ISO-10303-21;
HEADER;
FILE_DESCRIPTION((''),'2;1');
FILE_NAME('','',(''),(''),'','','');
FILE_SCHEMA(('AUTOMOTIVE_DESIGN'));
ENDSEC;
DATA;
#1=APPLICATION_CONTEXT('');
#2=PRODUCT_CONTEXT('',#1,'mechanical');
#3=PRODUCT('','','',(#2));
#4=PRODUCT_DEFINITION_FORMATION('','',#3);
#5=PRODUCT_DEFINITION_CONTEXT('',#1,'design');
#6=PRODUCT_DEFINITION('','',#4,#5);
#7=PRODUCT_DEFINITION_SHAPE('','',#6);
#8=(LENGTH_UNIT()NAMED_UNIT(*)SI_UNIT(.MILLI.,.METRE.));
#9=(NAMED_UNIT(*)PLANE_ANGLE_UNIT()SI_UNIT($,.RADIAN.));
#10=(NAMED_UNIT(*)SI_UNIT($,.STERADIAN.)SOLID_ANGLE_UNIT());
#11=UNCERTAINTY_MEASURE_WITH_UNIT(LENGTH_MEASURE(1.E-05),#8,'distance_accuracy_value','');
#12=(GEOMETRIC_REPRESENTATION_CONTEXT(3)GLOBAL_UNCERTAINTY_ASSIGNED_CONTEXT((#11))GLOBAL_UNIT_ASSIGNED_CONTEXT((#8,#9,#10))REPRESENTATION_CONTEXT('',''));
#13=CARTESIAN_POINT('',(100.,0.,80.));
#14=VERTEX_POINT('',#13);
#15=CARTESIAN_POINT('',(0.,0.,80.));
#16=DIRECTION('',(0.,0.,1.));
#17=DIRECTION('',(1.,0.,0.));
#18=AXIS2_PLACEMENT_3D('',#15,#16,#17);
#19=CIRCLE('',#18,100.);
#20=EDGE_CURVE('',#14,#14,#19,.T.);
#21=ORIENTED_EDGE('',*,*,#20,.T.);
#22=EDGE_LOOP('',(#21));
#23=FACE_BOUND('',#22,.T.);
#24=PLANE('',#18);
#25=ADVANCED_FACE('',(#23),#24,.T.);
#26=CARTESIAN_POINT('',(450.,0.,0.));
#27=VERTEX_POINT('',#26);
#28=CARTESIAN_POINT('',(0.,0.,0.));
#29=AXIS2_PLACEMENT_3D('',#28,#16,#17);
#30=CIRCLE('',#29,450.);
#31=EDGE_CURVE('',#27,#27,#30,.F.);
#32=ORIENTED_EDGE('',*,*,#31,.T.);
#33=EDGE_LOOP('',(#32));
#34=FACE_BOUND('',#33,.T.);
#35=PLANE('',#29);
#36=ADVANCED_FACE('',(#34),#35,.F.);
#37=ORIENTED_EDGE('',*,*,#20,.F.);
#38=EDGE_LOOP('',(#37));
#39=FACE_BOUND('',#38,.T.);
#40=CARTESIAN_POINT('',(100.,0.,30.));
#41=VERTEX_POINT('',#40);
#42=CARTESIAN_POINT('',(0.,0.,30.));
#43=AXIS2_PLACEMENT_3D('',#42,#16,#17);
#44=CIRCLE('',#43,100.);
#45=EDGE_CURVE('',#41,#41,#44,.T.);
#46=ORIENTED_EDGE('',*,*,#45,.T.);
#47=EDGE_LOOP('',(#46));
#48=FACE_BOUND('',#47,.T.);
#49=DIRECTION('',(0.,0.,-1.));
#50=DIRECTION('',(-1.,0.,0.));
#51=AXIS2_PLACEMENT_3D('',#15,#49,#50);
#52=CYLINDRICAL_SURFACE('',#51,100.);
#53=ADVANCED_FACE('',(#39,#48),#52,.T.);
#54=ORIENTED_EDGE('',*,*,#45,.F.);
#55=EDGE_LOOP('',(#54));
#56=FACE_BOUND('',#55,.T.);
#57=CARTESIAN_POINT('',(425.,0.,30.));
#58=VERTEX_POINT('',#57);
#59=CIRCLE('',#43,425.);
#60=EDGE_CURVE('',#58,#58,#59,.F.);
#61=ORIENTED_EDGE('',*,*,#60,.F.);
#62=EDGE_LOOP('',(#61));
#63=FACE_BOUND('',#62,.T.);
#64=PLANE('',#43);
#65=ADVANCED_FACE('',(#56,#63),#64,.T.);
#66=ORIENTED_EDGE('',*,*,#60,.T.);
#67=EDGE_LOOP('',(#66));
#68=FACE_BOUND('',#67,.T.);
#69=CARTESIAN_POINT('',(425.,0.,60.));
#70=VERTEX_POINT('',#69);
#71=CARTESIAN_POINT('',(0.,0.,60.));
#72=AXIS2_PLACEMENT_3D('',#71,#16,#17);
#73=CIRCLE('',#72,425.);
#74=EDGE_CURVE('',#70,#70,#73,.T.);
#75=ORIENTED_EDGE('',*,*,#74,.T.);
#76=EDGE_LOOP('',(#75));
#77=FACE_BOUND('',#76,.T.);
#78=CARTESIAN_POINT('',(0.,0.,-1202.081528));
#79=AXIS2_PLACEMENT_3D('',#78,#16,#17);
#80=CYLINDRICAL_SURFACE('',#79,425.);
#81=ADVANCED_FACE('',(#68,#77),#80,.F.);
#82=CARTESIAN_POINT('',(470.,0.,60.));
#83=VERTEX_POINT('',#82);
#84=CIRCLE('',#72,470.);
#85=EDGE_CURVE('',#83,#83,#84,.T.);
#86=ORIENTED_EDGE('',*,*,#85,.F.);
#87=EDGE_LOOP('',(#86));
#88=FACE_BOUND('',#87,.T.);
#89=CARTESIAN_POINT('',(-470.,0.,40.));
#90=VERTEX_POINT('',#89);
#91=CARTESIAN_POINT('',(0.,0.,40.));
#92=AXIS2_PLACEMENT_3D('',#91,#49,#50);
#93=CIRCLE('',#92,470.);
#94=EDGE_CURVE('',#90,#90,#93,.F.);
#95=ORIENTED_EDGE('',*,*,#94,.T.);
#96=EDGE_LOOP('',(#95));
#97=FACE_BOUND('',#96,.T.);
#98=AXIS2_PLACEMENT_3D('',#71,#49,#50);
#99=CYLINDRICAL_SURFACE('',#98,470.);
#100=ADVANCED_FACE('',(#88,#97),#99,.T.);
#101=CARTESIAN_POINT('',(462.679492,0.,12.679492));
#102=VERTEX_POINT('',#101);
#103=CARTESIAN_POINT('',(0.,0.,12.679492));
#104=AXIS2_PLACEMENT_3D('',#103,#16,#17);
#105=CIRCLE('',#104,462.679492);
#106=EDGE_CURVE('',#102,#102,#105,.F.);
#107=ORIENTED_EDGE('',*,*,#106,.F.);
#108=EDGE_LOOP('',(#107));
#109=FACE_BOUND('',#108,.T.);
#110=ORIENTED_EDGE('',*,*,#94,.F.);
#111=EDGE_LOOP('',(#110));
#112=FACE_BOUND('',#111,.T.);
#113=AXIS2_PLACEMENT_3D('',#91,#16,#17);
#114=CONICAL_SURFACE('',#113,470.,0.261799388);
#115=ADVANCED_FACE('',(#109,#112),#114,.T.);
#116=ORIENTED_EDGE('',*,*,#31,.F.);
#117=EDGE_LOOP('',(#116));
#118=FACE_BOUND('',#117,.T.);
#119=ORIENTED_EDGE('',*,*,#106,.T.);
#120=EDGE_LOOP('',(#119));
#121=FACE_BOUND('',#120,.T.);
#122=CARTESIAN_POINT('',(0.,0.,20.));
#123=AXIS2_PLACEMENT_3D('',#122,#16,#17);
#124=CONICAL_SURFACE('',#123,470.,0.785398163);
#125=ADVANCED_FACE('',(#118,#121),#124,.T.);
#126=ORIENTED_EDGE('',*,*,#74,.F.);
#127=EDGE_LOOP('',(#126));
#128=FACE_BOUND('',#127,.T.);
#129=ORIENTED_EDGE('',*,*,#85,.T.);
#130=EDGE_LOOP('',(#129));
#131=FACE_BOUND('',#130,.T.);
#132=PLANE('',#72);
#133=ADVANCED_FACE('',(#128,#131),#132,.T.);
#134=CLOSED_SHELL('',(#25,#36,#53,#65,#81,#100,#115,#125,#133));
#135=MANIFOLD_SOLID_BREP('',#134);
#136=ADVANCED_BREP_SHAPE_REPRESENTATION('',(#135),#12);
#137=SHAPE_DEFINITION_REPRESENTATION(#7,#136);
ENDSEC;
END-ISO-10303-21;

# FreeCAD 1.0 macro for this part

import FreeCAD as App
import Part
import Sketcher


def edges_at(feature, points):
    """Names of the edges that pass closest to the given points."""
    edges = feature.Shape.Edges
    near = lambda p: min(range(len(edges)), key=lambda i: edges[i].distToShape(Part.Vertex(*p))[0])
    return sorted({f"Edge{near(p) + 1}" for p in points})

doc = App.newDocument("Part")
params = doc.addObject("Spreadsheet::Sheet", "Params")
for row, (alias, value) in enumerate([
    ("sketch1_diameter", "940 mm"),
    ("pad1_length", "60 mm"),
    ("sketch2_diameter", "200 mm"),
    ("pad2_length", "80 mm"),
    ("sketch3_diameter", "850 mm"),
    ("sketch3_diameter2", "200 mm"),
    ("pocket1_length", "30 mm"),
    ("chamfer_size", "20 mm"),
    ("chamfer2_size", "20 mm"),
    ("chamfer2_size2", "10.352762 mm"),
], start=1):
    params.set(f"A{row}", alias)
    params.set(f"B{row}", "=" + value)
    params.setAlias(f"B{row}", alias)

body = doc.addObject("PartDesign::Body", "Body")

sketch1 = doc.addObject("Sketcher::SketchObject", "Sketch")
body.addObject(sketch1)
sketch1.AttachmentSupport = (doc.XY_Plane, [""])
sketch1.MapMode = "FlatFace"
sketch1.addGeometry(Part.Circle(App.Vector(0, 0, 0), App.Vector(0, 0, 1), 470), False)
sketch1.addConstraint([
    Sketcher.Constraint("Coincident", 0, 3, -1, 1),
    Sketcher.Constraint("Diameter", 0, 940.0),
])
sketch1.setExpression("Constraints[1]", "Params.sketch1_diameter")
pad1 = doc.addObject("PartDesign::Pad", "Pad")
body.addObject(pad1)
pad1.Profile = sketch1
pad1.setExpression("Length", "Params.pad1_length")

sketch2 = doc.addObject("Sketcher::SketchObject", "Sketch001")
body.addObject(sketch2)
sketch2.AttachmentSupport = (doc.XY_Plane, [""])
sketch2.MapMode = "FlatFace"
sketch2.addGeometry(Part.Circle(App.Vector(0, 0, 0), App.Vector(0, 0, 1), 100), False)
sketch2.addConstraint([
    Sketcher.Constraint("Coincident", 0, 3, -1, 1),
    Sketcher.Constraint("Diameter", 0, 200.0),
])
sketch2.setExpression("Constraints[1]", "Params.sketch2_diameter")
pad2 = doc.addObject("PartDesign::Pad", "Pad001")
body.addObject(pad2)
pad2.Profile = sketch2
pad2.setExpression("Length", "Params.pad2_length")

sketch3 = doc.addObject("Sketcher::SketchObject", "Sketch002")
body.addObject(sketch3)
sketch3.AttachmentSupport = (doc.XY_Plane, [""])
sketch3.MapMode = "FlatFace"
sketch3.AttachmentOffset = App.Placement(App.Vector(0, 0, 60), App.Rotation())
sketch3.addGeometry([
    Part.Circle(App.Vector(0, 0, 0), App.Vector(0, 0, 1), 425),
    Part.Circle(App.Vector(0, 0, 0), App.Vector(0, 0, 1), 100),
], False)
sketch3.addConstraint([
    Sketcher.Constraint("Coincident", 0, 3, -1, 1),
    Sketcher.Constraint("Coincident", 1, 3, -1, 1),
    Sketcher.Constraint("Diameter", 0, 850.0),
    Sketcher.Constraint("Diameter", 1, 200.0),
])
sketch3.setExpression("Constraints[2]", "Params.sketch3_diameter")
sketch3.setExpression("Constraints[3]", "Params.sketch3_diameter2")
pocket1 = doc.addObject("PartDesign::Pocket", "Pocket")
body.addObject(pocket1)
pocket1.Profile = sketch3
pocket1.setExpression("Length", "Params.pocket1_length")
doc.recompute()

chamfer = doc.addObject("PartDesign::Chamfer", "Chamfer")
body.addObject(chamfer)
chamfer.Base = (pocket1, edges_at(pocket1, [(-470, 0, 0)]))
chamfer.setExpression("Size", "Params.chamfer_size")
doc.recompute()

chamfer2 = doc.addObject("PartDesign::Chamfer", "Chamfer001")
body.addObject(chamfer2)
chamfer2.Base = (chamfer, edges_at(chamfer, [(-470, 0, 20)]))
chamfer2.ChamferType = "Two distances"
chamfer2.setExpression("Size", "Params.chamfer2_size")
chamfer2.setExpression("Size2", "Params.chamfer2_size2")

doc.recompute()
